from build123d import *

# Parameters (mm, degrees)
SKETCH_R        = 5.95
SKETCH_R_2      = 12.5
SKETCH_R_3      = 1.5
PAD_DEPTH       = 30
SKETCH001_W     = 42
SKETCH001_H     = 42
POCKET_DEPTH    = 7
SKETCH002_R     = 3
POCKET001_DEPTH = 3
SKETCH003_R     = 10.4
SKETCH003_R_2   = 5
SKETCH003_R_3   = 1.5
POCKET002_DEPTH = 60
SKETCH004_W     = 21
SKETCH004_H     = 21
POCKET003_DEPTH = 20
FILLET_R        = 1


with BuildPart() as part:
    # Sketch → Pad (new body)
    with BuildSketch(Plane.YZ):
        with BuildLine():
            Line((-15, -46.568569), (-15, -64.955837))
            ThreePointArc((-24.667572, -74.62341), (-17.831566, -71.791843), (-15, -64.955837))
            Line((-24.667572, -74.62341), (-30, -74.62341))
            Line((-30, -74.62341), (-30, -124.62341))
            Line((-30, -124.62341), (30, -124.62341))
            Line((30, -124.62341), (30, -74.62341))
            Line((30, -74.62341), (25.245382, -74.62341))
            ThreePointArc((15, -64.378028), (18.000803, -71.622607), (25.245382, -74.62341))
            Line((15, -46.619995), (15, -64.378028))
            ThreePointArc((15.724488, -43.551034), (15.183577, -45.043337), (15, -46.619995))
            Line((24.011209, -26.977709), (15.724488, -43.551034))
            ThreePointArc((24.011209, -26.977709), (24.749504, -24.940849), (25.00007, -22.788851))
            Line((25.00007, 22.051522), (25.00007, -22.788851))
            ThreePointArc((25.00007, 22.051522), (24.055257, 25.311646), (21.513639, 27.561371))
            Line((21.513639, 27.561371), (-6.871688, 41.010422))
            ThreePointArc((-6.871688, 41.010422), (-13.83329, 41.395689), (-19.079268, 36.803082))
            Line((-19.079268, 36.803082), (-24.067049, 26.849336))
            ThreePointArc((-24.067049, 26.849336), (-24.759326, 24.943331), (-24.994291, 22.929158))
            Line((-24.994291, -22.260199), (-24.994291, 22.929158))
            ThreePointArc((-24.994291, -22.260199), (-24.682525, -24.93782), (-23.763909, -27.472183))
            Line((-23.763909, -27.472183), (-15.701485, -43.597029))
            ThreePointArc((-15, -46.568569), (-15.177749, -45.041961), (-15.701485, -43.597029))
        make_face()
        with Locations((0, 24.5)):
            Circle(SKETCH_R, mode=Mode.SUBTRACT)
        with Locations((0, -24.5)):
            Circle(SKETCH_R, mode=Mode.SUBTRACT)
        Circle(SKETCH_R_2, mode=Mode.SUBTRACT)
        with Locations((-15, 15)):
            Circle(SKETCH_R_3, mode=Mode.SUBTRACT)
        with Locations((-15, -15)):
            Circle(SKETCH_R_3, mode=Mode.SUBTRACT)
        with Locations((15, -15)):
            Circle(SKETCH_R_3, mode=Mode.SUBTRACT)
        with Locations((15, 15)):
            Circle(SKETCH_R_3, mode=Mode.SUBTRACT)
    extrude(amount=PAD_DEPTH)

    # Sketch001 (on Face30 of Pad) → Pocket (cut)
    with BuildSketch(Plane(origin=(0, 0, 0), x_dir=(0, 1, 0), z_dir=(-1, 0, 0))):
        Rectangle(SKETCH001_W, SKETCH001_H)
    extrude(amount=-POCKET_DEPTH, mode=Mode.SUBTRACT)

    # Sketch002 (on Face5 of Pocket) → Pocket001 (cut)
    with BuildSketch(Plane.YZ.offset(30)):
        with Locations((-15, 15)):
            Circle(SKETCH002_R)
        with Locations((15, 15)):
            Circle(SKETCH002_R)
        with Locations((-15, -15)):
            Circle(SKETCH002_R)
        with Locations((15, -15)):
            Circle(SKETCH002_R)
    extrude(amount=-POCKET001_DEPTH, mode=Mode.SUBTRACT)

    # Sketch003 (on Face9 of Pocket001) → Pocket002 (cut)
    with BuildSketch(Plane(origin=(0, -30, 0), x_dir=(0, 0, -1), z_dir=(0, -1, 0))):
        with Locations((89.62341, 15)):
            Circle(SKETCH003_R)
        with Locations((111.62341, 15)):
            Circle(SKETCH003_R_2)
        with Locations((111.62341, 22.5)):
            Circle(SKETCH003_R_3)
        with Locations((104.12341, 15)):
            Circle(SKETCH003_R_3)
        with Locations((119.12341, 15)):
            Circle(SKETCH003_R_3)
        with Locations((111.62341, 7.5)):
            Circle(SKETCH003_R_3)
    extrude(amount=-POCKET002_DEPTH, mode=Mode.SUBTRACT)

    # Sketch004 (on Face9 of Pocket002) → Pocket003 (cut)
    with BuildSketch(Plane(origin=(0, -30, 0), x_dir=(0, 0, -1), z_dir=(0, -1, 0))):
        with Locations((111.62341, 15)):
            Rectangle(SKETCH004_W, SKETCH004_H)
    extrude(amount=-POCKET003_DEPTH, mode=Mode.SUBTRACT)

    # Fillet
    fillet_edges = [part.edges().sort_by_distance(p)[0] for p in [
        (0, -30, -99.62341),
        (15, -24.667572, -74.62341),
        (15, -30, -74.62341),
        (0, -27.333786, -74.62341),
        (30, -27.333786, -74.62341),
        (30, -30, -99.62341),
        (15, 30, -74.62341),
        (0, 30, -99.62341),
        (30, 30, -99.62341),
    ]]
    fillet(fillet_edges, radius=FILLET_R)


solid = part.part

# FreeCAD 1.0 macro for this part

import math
import FreeCAD as App
import Part
import Sketcher

V = App.Vector
Q = App.Units.Quantity


def edges_at(feature, points):
    """Names of the edges that pass closest to the given points."""
    edges = feature.Shape.Edges
    near = lambda p: min(range(len(edges)), key=lambda i: edges[i].distToShape(Part.Vertex(*p))[0])
    return sorted({f"Edge{near(p) + 1}" for p in points})

doc = App.newDocument("Part")
params = doc.addObject("Spreadsheet::Sheet", "Params")
for row, (alias, value) in enumerate([
    ("sketch1_diameter", "3 mm"),
    ("sketch1_diameter2", "3 mm"),
    ("sketch1_diameter3", "3 mm"),
    ("sketch1_diameter4", "25 mm"),
    ("sketch1_diameter5", "3 mm"),
    ("pad1_length", "30 mm"),
    ("sketch2_width", "42 mm"),
    ("pocket1_length", "7 mm"),
    ("sketch3_diameter", "6 mm"),
    ("pocket2_length", "3 mm"),
    ("sketch4_diameter", "10 mm"),
    ("sketch4_diameter2", "3 mm"),
    ("sketch4_diameter3", "20.8 mm"),
    ("pocket3_length", "60 mm"),
    ("sketch5_width", "21 mm"),
    ("pocket4_length", "20 mm"),
    ("fillet_radius", "1 mm"),
], start=1):
    params.set(f"A{row}", alias)
    params.set(f"B{row}", "=" + value)
    params.setAlias(f"B{row}", alias)

body = doc.addObject("PartDesign::Body", "Body")

sketch1 = body.newObject("Sketcher::SketchObject", "Sketch")
sketch1.AttachmentSupport = (doc.getObject("YZ_Plane"), [""])
sketch1.MapMode = "FlatFace"
sketch1.addGeometry(Part.LineSegment(V(-15, -46.568569, 0), V(-15, -64.955837, 0)), False)
sketch1.addGeometry(Part.ArcOfCircle(Part.Circle(V(-24.667573, -64.955837, 0), V(0, 0, 1), 9.667573), math.radians(-89.999996), math.radians(0.000001)), False)
sketch1.addGeometry(Part.LineSegment(V(-24.667572, -74.62341, 0), V(-30, -74.62341, 0)), False)
sketch1.addGeometry(Part.LineSegment(V(-30, -74.62341, 0), V(-30, -124.62341, 0)), False)
sketch1.addGeometry(Part.LineSegment(V(-30, -124.62341, 0), V(30, -124.62341, 0)), False)
sketch1.addGeometry(Part.LineSegment(V(30, -124.62341, 0), V(30, -74.62341, 0)), False)
sketch1.addGeometry(Part.LineSegment(V(30, -74.62341, 0), V(25.245382, -74.62341, 0)), False)
sketch1.addGeometry(Part.ArcOfCircle(Part.Circle(V(25.245382, -64.378028, 0), V(0, 0, 1), 10.245382), math.radians(-179.999998), math.radians(-90.000002)), False)
sketch1.addGeometry(Part.LineSegment(V(15, -64.378028, 0), V(15, -46.619995, 0)), False)
sketch1.addGeometry(Part.ArcOfCircle(Part.Circle(V(21.862352, -46.619991, 0), V(0, 0, 1), 6.862352), math.radians(153.434757), math.radians(180.000029)), False)
sketch1.addGeometry(Part.LineSegment(V(15.724488, -43.551034, 0), V(24.011209, -26.977709, 0)), False)
sketch1.addGeometry(Part.ArcOfCircle(Part.Circle(V(15.633576, -22.788858, 0), V(0, 0, 1), 9.366494), math.radians(-26.565241), math.radians(0.000041)), False)
sketch1.addGeometry(Part.LineSegment(V(25.00007, -22.788851, 0), V(25.00007, 22.051522, 0)), False)
sketch1.addGeometry(Part.ArcOfCircle(Part.Circle(V(18.903058, 22.051523, 0), V(0, 0, 1), 6.097012), math.radians(-0.000011), math.radians(64.648276)), False)
sketch1.addGeometry(Part.LineSegment(V(21.513639, 27.561371, 0), V(-6.871688, 41.010422, 0)), False)
sketch1.addGeometry(Part.ArcOfCircle(Part.Circle(V(-10.824897, 32.666851, 0), V(0, 0, 1), 9.232716), math.radians(64.648265), math.radians(153.384738)), False)
sketch1.addGeometry(Part.LineSegment(V(-19.079268, 36.803082, 0), V(-24.067049, 26.849336, 0)), False)
sketch1.addGeometry(Part.ArcOfCircle(Part.Circle(V(-16.243842, 22.929159, 0), V(0, 0, 1), 8.750449), math.radians(153.384736), math.radians(180.000005)), False)
sketch1.addGeometry(Part.LineSegment(V(-24.994291, 22.929158, 0), V(-24.994291, -22.260199, 0)), False)
sketch1.addGeometry(Part.ArcOfCircle(Part.Circle(V(-13.339919, -22.260195, 0), V(0, 0, 1), 11.654372), math.radians(-179.99998), math.radians(-153.43498)), False)
sketch1.addGeometry(Part.LineSegment(V(-23.763909, -27.472183, 0), V(-15.701485, -43.597029, 0)), False)
sketch1.addGeometry(Part.ArcOfCircle(Part.Circle(V(-21.644581, -46.568572, 0), V(0, 0, 1), 6.644581), math.radians(0.000024), math.radians(26.565011)), False)
sketch1.addGeometry(Part.Circle(V(-15, -15, 0), V(0, 0, 1), 1.5), False)
sketch1.addGeometry(Part.Circle(V(0, -24.5, 0), V(0, 0, 1), 5.95), False)
sketch1.addGeometry(Part.Circle(V(15, -15, 0), V(0, 0, 1), 1.5), False)
sketch1.addGeometry(Part.Circle(V(-15, 15, 0), V(0, 0, 1), 1.5), False)
sketch1.addGeometry(Part.Circle(V(0, 0, 0), V(0, 0, 1), 12.5), False)
sketch1.addGeometry(Part.Circle(V(15, 15, 0), V(0, 0, 1), 1.5), False)
sketch1.addGeometry(Part.Circle(V(0, 24.5, 0), V(0, 0, 1), 5.95), False)
sketch1.addConstraint(Sketcher.Constraint("Coincident", 0, 2, 1, 2))
sketch1.addConstraint(Sketcher.Constraint("Coincident", 1, 1, 2, 1))
sketch1.addConstraint(Sketcher.Constraint("Coincident", 2, 2, 3, 1))
sketch1.addConstraint(Sketcher.Constraint("Coincident", 3, 2, 4, 1))
sketch1.addConstraint(Sketcher.Constraint("Coincident", 4, 2, 5, 1))
sketch1.addConstraint(Sketcher.Constraint("Coincident", 5, 2, 6, 1))
sketch1.addConstraint(Sketcher.Constraint("Coincident", 6, 2, 7, 2))
sketch1.addConstraint(Sketcher.Constraint("Coincident", 7, 1, 8, 1))
sketch1.addConstraint(Sketcher.Constraint("Coincident", 8, 2, 9, 2))
sketch1.addConstraint(Sketcher.Constraint("Coincident", 9, 1, 10, 1))
sketch1.addConstraint(Sketcher.Constraint("Coincident", 10, 2, 11, 1))
sketch1.addConstraint(Sketcher.Constraint("Coincident", 11, 2, 12, 1))
sketch1.addConstraint(Sketcher.Constraint("Coincident", 12, 2, 13, 1))
sketch1.addConstraint(Sketcher.Constraint("Coincident", 13, 2, 14, 1))
sketch1.addConstraint(Sketcher.Constraint("Coincident", 14, 2, 15, 1))
sketch1.addConstraint(Sketcher.Constraint("Coincident", 15, 2, 16, 1))
sketch1.addConstraint(Sketcher.Constraint("Coincident", 16, 2, 17, 1))
sketch1.addConstraint(Sketcher.Constraint("Coincident", 17, 2, 18, 1))
sketch1.addConstraint(Sketcher.Constraint("Coincident", 18, 2, 19, 1))
sketch1.addConstraint(Sketcher.Constraint("Coincident", 19, 2, 20, 1))
sketch1.addConstraint(Sketcher.Constraint("Coincident", 20, 2, 21, 2))
sketch1.addConstraint(Sketcher.Constraint("Coincident", 21, 1, 0, 1))
sketch1.addConstraint(Sketcher.Constraint("Vertical", 0))
sketch1.addConstraint(Sketcher.Constraint("Horizontal", 2))
sketch1.addConstraint(Sketcher.Constraint("Vertical", 3))
sketch1.addConstraint(Sketcher.Constraint("Horizontal", 4))
sketch1.addConstraint(Sketcher.Constraint("Vertical", 5))
sketch1.addConstraint(Sketcher.Constraint("Horizontal", 6))
sketch1.addConstraint(Sketcher.Constraint("Vertical", 8))
sketch1.addConstraint(Sketcher.Constraint("Vertical", 12))
sketch1.addConstraint(Sketcher.Constraint("Vertical", 18))
sketch1.addConstraint(Sketcher.Constraint("Coincident", 26, 3, -1, 1))
sketch1.addConstraint(Sketcher.Constraint("PointOnObject", 23, 3, -2))
sketch1.addConstraint(Sketcher.Constraint("PointOnObject", 28, 3, -2))
sketch1.addConstraint(Sketcher.Constraint("Diameter", 22, Q("3 mm")))
sketch1.addConstraint(Sketcher.Constraint("Diameter", 24, Q("3 mm")))
sketch1.addConstraint(Sketcher.Constraint("Diameter", 25, Q("3 mm")))
sketch1.addConstraint(Sketcher.Constraint("Diameter", 26, Q("25 mm")))
sketch1.addConstraint(Sketcher.Constraint("Diameter", 27, Q("3 mm")))
sketch1.addConstraint(Sketcher.Constraint("Diameter", 23, Q("11.9 mm")))
sketch1.addConstraint(Sketcher.Constraint("Diameter", 28, Q("11.9 mm")))
sketch1.addConstraint(Sketcher.Constraint("DistanceX", 4, 1, 4, 2, Q("60 mm")))
sketch1.addConstraint(Sketcher.Constraint("DistanceY", 3, 2, 3, 1, Q("50 mm")))
sketch1.addConstraint(Sketcher.Constraint("DistanceY", 5, 1, 5, 2, Q("50 mm")))
sketch1.addConstraint(Sketcher.Constraint("DistanceX", 22, 3, -1, 1, Q("15 mm")))
sketch1.addConstraint(Sketcher.Constraint("DistanceY", 22, 3, -1, 1, Q("15 mm")))
sketch1.addConstraint(Sketcher.Constraint("DistanceX", -1, 1, 24, 3, Q("15 mm")))
sketch1.addConstraint(Sketcher.Constraint("DistanceY", 24, 3, -1, 1, Q("15 mm")))
sketch1.addConstraint(Sketcher.Constraint("DistanceX", 25, 3, -1, 1, Q("15 mm")))
sketch1.addConstraint(Sketcher.Constraint("DistanceY", -1, 1, 25, 3, Q("15 mm")))
sketch1.addConstraint(Sketcher.Constraint("DistanceX", -1, 1, 27, 3, Q("15 mm")))
sketch1.addConstraint(Sketcher.Constraint("DistanceY", -1, 1, 27, 3, Q("15 mm")))
sketch1.addConstraint(Sketcher.Constraint("DistanceX", 0, 2, -1, 1, Q("15 mm")))
sketch1.addConstraint(Sketcher.Constraint("DistanceX", 2, 2, -1, 1, Q("30 mm")))
sketch1.addConstraint(Sketcher.Constraint("DistanceX", -1, 1, 7, 1, Q("15 mm")))
sketch1.addConstraint(Sketcher.Constraint("DistanceY", 23, 3, -1, 1, Q("24.5 mm")))
sketch1.addConstraint(Sketcher.Constraint("DistanceY", -1, 1, 28, 3, Q("24.5 mm")))
sketch1.addConstraint(Sketcher.Constraint("Radius", 9, Q("6.862352 mm")))
sketch1.addConstraint(Sketcher.Constraint("Radius", 17, Q("8.750449 mm")))
sketch1.addConstraint(Sketcher.Constraint("Radius", 21, Q("6.644581 mm")))
sketch1.addConstraint(Sketcher.Constraint("Radius", 1, Q("9.667573 mm")))
sketch1.addConstraint(Sketcher.Constraint("Radius", 7, Q("10.245382 mm")))
sketch1.addConstraint(Sketcher.Constraint("Radius", 11, Q("9.366494 mm")))
sketch1.addConstraint(Sketcher.Constraint("Radius", 13, Q("6.097012 mm")))
sketch1.addConstraint(Sketcher.Constraint("Radius", 15, Q("9.232716 mm")))
sketch1.addConstraint(Sketcher.Constraint("Radius", 19, Q("11.654372 mm")))
sketch1.addConstraint(Sketcher.Constraint("DistanceX", 2, 2, 2, 1, Q("5.332428 mm")))
sketch1.addConstraint(Sketcher.Constraint("DistanceX", 6, 2, 6, 1, Q("4.754618 mm")))
sketch1.addConstraint(Sketcher.Constraint("DistanceY", 0, 2, 0, 1, Q("18.387268 mm")))
sketch1.addConstraint(Sketcher.Constraint("DistanceY", 18, 2, -1, 1, Q("22.260199 mm")))
sketch1.addConstraint(Sketcher.Constraint("DistanceX", 17, 3, 13, 3, Q("35.1469 mm")))
sketch1.addConstraint(Sketcher.Constraint("Distance", 14, Q("31.410249 mm")))
sketch1.addConstraint(Sketcher.Constraint("Distance", 16, Q("11.133509 mm")))
sketch1.addConstraint(Sketcher.Constraint("DistanceY", 8, 1, 8, 2, Q("17.758033 mm")))
sketch1.addConstraint(Sketcher.Constraint("DistanceY", 12, 1, 12, 2, Q("44.840373 mm")))
sketch1.addConstraint(Sketcher.Constraint("DistanceY", 18, 2, 18, 1, Q("45.189357 mm")))
sketch1.addConstraint(Sketcher.Constraint("DistanceY", 9, 3, -1, 1, Q("46.619991 mm")))
sketch1.addConstraint(Sketcher.Constraint("DistanceY", -1, 1, 15, 3, Q("32.666851 mm")))
sketch1.addConstraint(Sketcher.Constraint("DistanceY", -1, 1, 17, 3, Q("22.929159 mm")))
sketch1.addConstraint(Sketcher.Constraint("DistanceX", 19, 3, -1, 1, Q("13.339919 mm")))
sketch1.addConstraint(Sketcher.Constraint("DistanceY", 21, 3, -1, 1, Q("46.568572 mm")))
sketch1.addConstraint(Sketcher.Constraint("DistanceY", 1, 1, -1, 1, Q("74.62341 mm")))
sketch1.addConstraint(Sketcher.Constraint("DistanceY", 7, 1, -1, 1, Q("64.378028 mm")))
sketch1.addConstraint(Sketcher.Constraint("DistanceX", -1, 1, 9, 1, Q("15.724488 mm")))
sketch1.addConstraint(Sketcher.Constraint("DistanceX", -1, 1, 10, 2, Q("24.011209 mm")))
sketch1.addConstraint(Sketcher.Constraint("DistanceY", 10, 2, -1, 1, Q("26.977709 mm")))
sketch1.addConstraint(Sketcher.Constraint("DistanceY", 11, 2, -1, 1, Q("22.788851 mm")))
sketch1.addConstraint(Sketcher.Constraint("DistanceX", -1, 1, 13, 2, Q("21.513639 mm")))
sketch1.addConstraint(Sketcher.Constraint("DistanceY", -1, 1, 13, 2, Q("27.561371 mm")))
sketch1.addConstraint(Sketcher.Constraint("DistanceY", -1, 1, 14, 2, Q("41.010422 mm")))
sketch1.addConstraint(Sketcher.Constraint("DistanceY", -1, 1, 15, 2, Q("36.803082 mm")))
sketch1.addConstraint(Sketcher.Constraint("DistanceX", 19, 2, -1, 1, Q("23.763909 mm")))
sketch1.addConstraint(Sketcher.Constraint("DistanceY", 20, 2, -1, 1, Q("43.597029 mm")))
sketch1.addConstraint(Sketcher.Constraint("DistanceY", 21, 1, -1, 1, Q("46.568569 mm")))
sketch1.addConstraint(Sketcher.Constraint("DistanceY", 19, 3, 13, 3, Q("44.311718 mm")))
sketch1.setExpression("Constraints[34]", "Params.sketch1_diameter")
sketch1.setExpression("Constraints[35]", "Params.sketch1_diameter2")
sketch1.setExpression("Constraints[36]", "Params.sketch1_diameter3")
sketch1.setExpression("Constraints[37]", "Params.sketch1_diameter4")
sketch1.setExpression("Constraints[38]", "Params.sketch1_diameter5")
pad1 = body.newObject("PartDesign::Pad", "Pad")
pad1.Profile = sketch1
pad1.setExpression("Length", "Params.pad1_length")

sketch2 = body.newObject("Sketcher::SketchObject", "Sketch001")
sketch2.AttachmentSupport = (doc.getObject("YZ_Plane"), [""])
sketch2.MapMode = "FlatFace"
sketch2.addGeometry(Part.LineSegment(V(-21, -21, 0), V(-21, 21, 0)), False)
sketch2.addGeometry(Part.LineSegment(V(-21, 21, 0), V(21, 21, 0)), False)
sketch2.addGeometry(Part.LineSegment(V(21, 21, 0), V(21, -21, 0)), False)
sketch2.addGeometry(Part.LineSegment(V(21, -21, 0), V(-21, -21, 0)), False)
sketch2.addConstraint(Sketcher.Constraint("Coincident", 0, 2, 1, 1))
sketch2.addConstraint(Sketcher.Constraint("Coincident", 1, 2, 2, 1))
sketch2.addConstraint(Sketcher.Constraint("Coincident", 2, 2, 3, 1))
sketch2.addConstraint(Sketcher.Constraint("Coincident", 3, 2, 0, 1))
sketch2.addConstraint(Sketcher.Constraint("Vertical", 0))
sketch2.addConstraint(Sketcher.Constraint("Horizontal", 1))
sketch2.addConstraint(Sketcher.Constraint("Vertical", 2))
sketch2.addConstraint(Sketcher.Constraint("Horizontal", 3))
sketch2.addConstraint(Sketcher.Constraint("Symmetric", 0, 2, 2, 2, -1, 1))
sketch2.addConstraint(Sketcher.Constraint("Equal", 3, 0))
sketch2.addConstraint(Sketcher.Constraint("DistanceX", 1, 1, 1, 2, Q("42 mm")))
sketch2.setExpression("Constraints[10]", "Params.sketch2_width")
pocket1 = body.newObject("PartDesign::Pocket", "Pocket")
pocket1.Profile = sketch2
pocket1.setExpression("Length", "Params.pocket1_length")
pocket1.Reversed = True

sketch3 = body.newObject("Sketcher::SketchObject", "Sketch002")
sketch3.AttachmentSupport = (doc.getObject("YZ_Plane"), [""])
sketch3.MapMode = "FlatFace"
sketch3.AttachmentOffset = App.Placement(V(0, 0, 30), App.Rotation())
sketch3.addGeometry(Part.Circle(V(-15, 15, 0), V(0, 0, 1), 3), False)
sketch3.addGeometry(Part.Circle(V(15, 15, 0), V(0, 0, 1), 3), False)
sketch3.addGeometry(Part.Circle(V(-15, -15, 0), V(0, 0, 1), 3), False)
sketch3.addGeometry(Part.Circle(V(15, -15, 0), V(0, 0, 1), 3), False)
sketch3.addConstraint(Sketcher.Constraint("Equal", 0, 1))
sketch3.addConstraint(Sketcher.Constraint("Equal", 1, 2))
sketch3.addConstraint(Sketcher.Constraint("Equal", 2, 3))
sketch3.addConstraint(Sketcher.Constraint("Symmetric", 1, 3, 2, 3, -1, 1))
sketch3.addConstraint(Sketcher.Constraint("Symmetric", 0, 3, 3, 3, -1, 1))
sketch3.addConstraint(Sketcher.Constraint("Symmetric", 0, 3, 1, 3, -2))
sketch3.addConstraint(Sketcher.Constraint("Diameter", 0, Q("6 mm")))
sketch3.addConstraint(Sketcher.Constraint("DistanceX", 0, 3, -1, 1, Q("15 mm")))
sketch3.addConstraint(Sketcher.Constraint("DistanceY", -1, 1, 0, 3, Q("15 mm")))
sketch3.setExpression("Constraints[6]", "Params.sketch3_diameter")
pocket2 = body.newObject("PartDesign::Pocket", "Pocket001")
pocket2.Profile = sketch3
pocket2.setExpression("Length", "Params.pocket2_length")

sketch4 = body.newObject("Sketcher::SketchObject", "Sketch003")
sketch4.AttachmentSupport = (doc.getObject("XZ_Plane"), [""])
sketch4.MapMode = "FlatFace"
sketch4.AttachmentOffset = App.Placement(V(0, 0, 30), App.Rotation())
sketch4.addGeometry(Part.Circle(V(15, -89.6, 0), V(0, 0, 1), 10.4), False)
sketch4.addGeometry(Part.Circle(V(15, -111.6, 0), V(0, 0, 1), 5), False)
sketch4.addGeometry(Part.Circle(V(22.5, -111.6, 0), V(0, 0, 1), 1.5), False)
sketch4.addGeometry(Part.Circle(V(15, -104.1, 0), V(0, 0, 1), 1.5), False)
sketch4.addGeometry(Part.Circle(V(15, -119.1, 0), V(0, 0, 1), 1.5), False)
sketch4.addGeometry(Part.Circle(V(7.5, -111.6, 0), V(0, 0, 1), 1.5), False)
sketch4.addConstraint(Sketcher.Constraint("Equal", 2, 3))
sketch4.addConstraint(Sketcher.Constraint("Equal", 3, 4))
sketch4.addConstraint(Sketcher.Constraint("Equal", 4, 5))
sketch4.addConstraint(Sketcher.Constraint("Horizontal", 1, 3, 2, 3))
sketch4.addConstraint(Sketcher.Constraint("Horizontal", 2, 3, 5, 3))
sketch4.addConstraint(Sketcher.Constraint("Vertical", 0, 3, 1, 3))
sketch4.addConstraint(Sketcher.Constraint("Vertical", 1, 3, 3, 3))
sketch4.addConstraint(Sketcher.Constraint("Vertical", 3, 3, 4, 3))
sketch4.addConstraint(Sketcher.Constraint("Diameter", 1, Q("10 mm")))
sketch4.addConstraint(Sketcher.Constraint("Diameter", 2, Q("3 mm")))
sketch4.addConstraint(Sketcher.Constraint("Diameter", 0, Q("20.8 mm")))
sketch4.addConstraint(Sketcher.Constraint("DistanceX", -1, 1, 0, 3, Q("15 mm")))
sketch4.addConstraint(Sketcher.Constraint("DistanceY", 1, 3, 0, 3, Q("22 mm")))
sketch4.addConstraint(Sketcher.Constraint("DistanceY", 4, 3, 3, 3, Q("15 mm")))
sketch4.addConstraint(Sketcher.Constraint("DistanceX", 5, 3, 2, 3, Q("15 mm")))
sketch4.addConstraint(Sketcher.Constraint("DistanceX", -1, 1, 2, 3, Q("22.5 mm")))
sketch4.addConstraint(Sketcher.Constraint("DistanceY", 1, 3, 3, 3, Q("7.5 mm")))
sketch4.addConstraint(Sketcher.Constraint("DistanceY", 0, 3, -1, 1, Q("89.62341 mm")))
sketch4.setExpression("Constraints[8]", "Params.sketch4_diameter")
sketch4.setExpression("Constraints[9]", "Params.sketch4_diameter2")
sketch4.setExpression("Constraints[10]", "Params.sketch4_diameter3")
pocket3 = body.newObject("PartDesign::Pocket", "Pocket002")
pocket3.Profile = sketch4
pocket3.setExpression("Length", "Params.pocket3_length")

sketch5 = body.newObject("Sketcher::SketchObject", "Sketch004")
sketch5.AttachmentSupport = (doc.getObject("XZ_Plane"), [""])
sketch5.MapMode = "FlatFace"
sketch5.AttachmentOffset = App.Placement(V(0, 0, 30), App.Rotation())
sketch5.addGeometry(Part.LineSegment(V(26, -101, 0), V(4, -101, 0)), False)
sketch5.addGeometry(Part.LineSegment(V(4, -101, 0), V(4, -122, 0)), False)
sketch5.addGeometry(Part.LineSegment(V(4, -122, 0), V(26, -122, 0)), False)
sketch5.addGeometry(Part.LineSegment(V(26, -122, 0), V(26, -101, 0)), False)
sketch5.addConstraint(Sketcher.Constraint("Coincident", 0, 2, 1, 1))
sketch5.addConstraint(Sketcher.Constraint("Coincident", 1, 2, 2, 1))
sketch5.addConstraint(Sketcher.Constraint("Coincident", 2, 2, 3, 1))
sketch5.addConstraint(Sketcher.Constraint("Coincident", 3, 2, 0, 1))
sketch5.addConstraint(Sketcher.Constraint("Horizontal", 0))
sketch5.addConstraint(Sketcher.Constraint("Vertical", 1))
sketch5.addConstraint(Sketcher.Constraint("Horizontal", 2))
sketch5.addConstraint(Sketcher.Constraint("Vertical", 3))
sketch5.addConstraint(Sketcher.Constraint("Equal", 2, 1))
sketch5.addConstraint(Sketcher.Constraint("DistanceX", 0, 2, 0, 1, Q("21 mm")))
sketch5.addConstraint(Sketcher.Constraint("DistanceX", -1, 1, 0, 2, Q("4.5 mm")))
sketch5.addConstraint(Sketcher.Constraint("DistanceY", 0, 2, -1, 1, Q("101.12341 mm")))
sketch5.setExpression("Constraints[9]", "Params.sketch5_width")
pocket4 = body.newObject("PartDesign::Pocket", "Pocket003")
pocket4.Profile = sketch5
pocket4.setExpression("Length", "Params.pocket4_length")
doc.recompute()

fillet = body.newObject("PartDesign::Fillet", "Fillet")
fillet.Base = (pocket4, edges_at(pocket4, [
    (0, -30, -99.623),
    (15, -24.668, -74.623),
    (15, -30, -74.623),
    (0, -27.334, -74.623),
    (30, -27.334, -74.623),
    (30, -30, -99.623),
    (15, 30, -74.623),
    (0, 30, -99.623),
    (30, 30, -99.623),
]))
fillet.setExpression("Radius", "Params.fillet_radius")

doc.recompute()
